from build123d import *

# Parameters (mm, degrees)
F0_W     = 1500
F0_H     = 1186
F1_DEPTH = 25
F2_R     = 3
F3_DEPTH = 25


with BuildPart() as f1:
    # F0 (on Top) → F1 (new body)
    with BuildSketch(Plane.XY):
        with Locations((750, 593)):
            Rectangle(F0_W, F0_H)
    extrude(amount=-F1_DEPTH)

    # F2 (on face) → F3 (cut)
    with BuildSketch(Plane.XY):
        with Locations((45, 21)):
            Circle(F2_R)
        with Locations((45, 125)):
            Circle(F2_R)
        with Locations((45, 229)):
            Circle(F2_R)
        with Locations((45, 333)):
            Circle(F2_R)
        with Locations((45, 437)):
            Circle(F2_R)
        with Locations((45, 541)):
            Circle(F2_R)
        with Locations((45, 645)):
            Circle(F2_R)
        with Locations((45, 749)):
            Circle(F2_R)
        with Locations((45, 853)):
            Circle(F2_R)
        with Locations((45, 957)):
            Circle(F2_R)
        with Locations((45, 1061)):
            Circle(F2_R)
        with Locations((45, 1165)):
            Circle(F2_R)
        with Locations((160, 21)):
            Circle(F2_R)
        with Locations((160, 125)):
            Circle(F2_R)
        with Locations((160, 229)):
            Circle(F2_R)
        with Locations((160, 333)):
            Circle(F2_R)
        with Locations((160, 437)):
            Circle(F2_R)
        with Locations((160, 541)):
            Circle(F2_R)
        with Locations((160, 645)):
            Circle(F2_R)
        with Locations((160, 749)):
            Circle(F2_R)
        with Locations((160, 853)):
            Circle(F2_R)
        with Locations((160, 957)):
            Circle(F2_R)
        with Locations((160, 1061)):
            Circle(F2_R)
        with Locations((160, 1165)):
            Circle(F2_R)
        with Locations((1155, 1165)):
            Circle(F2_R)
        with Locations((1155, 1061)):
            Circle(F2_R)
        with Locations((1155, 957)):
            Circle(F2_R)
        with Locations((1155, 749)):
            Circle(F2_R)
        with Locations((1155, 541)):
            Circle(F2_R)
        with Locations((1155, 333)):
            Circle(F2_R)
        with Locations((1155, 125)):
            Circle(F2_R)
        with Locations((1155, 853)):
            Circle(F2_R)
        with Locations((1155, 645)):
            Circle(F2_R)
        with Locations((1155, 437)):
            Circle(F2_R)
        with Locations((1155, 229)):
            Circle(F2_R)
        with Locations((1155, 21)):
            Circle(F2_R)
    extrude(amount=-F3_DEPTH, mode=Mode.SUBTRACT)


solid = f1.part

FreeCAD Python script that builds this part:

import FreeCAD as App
import Part
import Sketcher

V = App.Vector


def add_polygon(sketch, points):
    """Adds a closed chain of lines whose ends are joined by coincident constraints."""
    first, n = sketch.GeometryCount, len(points)
    for a, b in zip(points, points[1:] + points[:1]):
        sketch.addGeometry(Part.LineSegment(App.Vector(*a, 0), App.Vector(*b, 0)), False)
    for i in range(n):
        sketch.addConstraint(Sketcher.Constraint("Coincident", first + i, 2, first + (i + 1) % n, 1))

doc = App.newDocument("Part")
body = doc.addObject("PartDesign::Body", "Body")

# Sketch on XY plane
sketch1 = body.newObject("Sketcher::SketchObject", "Sketch")
sketch1.AttachmentSupport = (doc.getObject("XY_Plane"), [""])
sketch1.MapMode = "FlatFace"
add_polygon(sketch1, [(0, 1186), (0, 0), (1500, 0), (1500, 1186)])  # lines 0-3
sketch1.addConstraint([
    Sketcher.Constraint("Vertical", 0),
    Sketcher.Constraint("Horizontal", 1),
    Sketcher.Constraint("Vertical", 2),
    Sketcher.Constraint("Horizontal", 3),
    Sketcher.Constraint("Coincident", 0, 2, -1, 1),
    Sketcher.Constraint("DistanceX", 1, 1, 1, 2, 1500.0),
    Sketcher.Constraint("DistanceY", 0, 2, 0, 1, 1186.0),
])
pad1 = body.newObject("PartDesign::Pad", "Pad")
pad1.Profile = sketch1
pad1.Length = 25
pad1.Reversed = True

# Sketch on XY plane
sketch2 = body.newObject("Sketcher::SketchObject", "Sketch001")
sketch2.AttachmentSupport = (doc.getObject("XY_Plane"), [""])
sketch2.MapMode = "FlatFace"
sketch2.addGeometry([
    Part.Circle(V(45, 21, 0), V(0, 0, 1), 3),  # 0
    Part.Circle(V(45, 125, 0), V(0, 0, 1), 3),  # 1
    Part.Circle(V(45, 229, 0), V(0, 0, 1), 3),  # 2
    Part.Circle(V(45, 333, 0), V(0, 0, 1), 3),  # 3
    Part.Circle(V(45, 437, 0), V(0, 0, 1), 3),  # 4
    Part.Circle(V(45, 541, 0), V(0, 0, 1), 3),  # 5
    Part.Circle(V(45, 645, 0), V(0, 0, 1), 3),  # 6
    Part.Circle(V(45, 749, 0), V(0, 0, 1), 3),  # 7
    Part.Circle(V(45, 853, 0), V(0, 0, 1), 3),  # 8
    Part.Circle(V(45, 957, 0), V(0, 0, 1), 3),  # 9
    Part.Circle(V(45, 1061, 0), V(0, 0, 1), 3),  # 10
    Part.Circle(V(45, 1165, 0), V(0, 0, 1), 3),  # 11
    Part.Circle(V(160, 21, 0), V(0, 0, 1), 3),  # 12
    Part.Circle(V(160, 125, 0), V(0, 0, 1), 3),  # 13
    Part.Circle(V(160, 229, 0), V(0, 0, 1), 3),  # 14
    Part.Circle(V(160, 333, 0), V(0, 0, 1), 3),  # 15
    Part.Circle(V(160, 437, 0), V(0, 0, 1), 3),  # 16
    Part.Circle(V(160, 541, 0), V(0, 0, 1), 3),  # 17
    Part.Circle(V(160, 645, 0), V(0, 0, 1), 3),  # 18
    Part.Circle(V(160, 749, 0), V(0, 0, 1), 3),  # 19
    Part.Circle(V(160, 853, 0), V(0, 0, 1), 3),  # 20
    Part.Circle(V(160, 957, 0), V(0, 0, 1), 3),  # 21
    Part.Circle(V(160, 1061, 0), V(0, 0, 1), 3),  # 22
    Part.Circle(V(160, 1165, 0), V(0, 0, 1), 3),  # 23
    Part.Circle(V(1155, 1165, 0), V(0, 0, 1), 3),  # 24
    Part.Circle(V(1155, 1061, 0), V(0, 0, 1), 3),  # 25
    Part.Circle(V(1155, 957, 0), V(0, 0, 1), 3),  # 26
    Part.Circle(V(1155, 749, 0), V(0, 0, 1), 3),  # 27
    Part.Circle(V(1155, 541, 0), V(0, 0, 1), 3),  # 28
    Part.Circle(V(1155, 333, 0), V(0, 0, 1), 3),  # 29
    Part.Circle(V(1155, 125, 0), V(0, 0, 1), 3),  # 30
    Part.Circle(V(1155, 853, 0), V(0, 0, 1), 3),  # 31
    Part.Circle(V(1155, 645, 0), V(0, 0, 1), 3),  # 32
    Part.Circle(V(1155, 437, 0), V(0, 0, 1), 3),  # 33
    Part.Circle(V(1155, 229, 0), V(0, 0, 1), 3),  # 34
    Part.Circle(V(1155, 21, 0), V(0, 0, 1), 3),  # 35
], False)
sketch2.addConstraint([
    Sketcher.Constraint("Equal", 0, 1),
    Sketcher.Constraint("Equal", 1, 2),
    Sketcher.Constraint("Equal", 2, 3),
    Sketcher.Constraint("Equal", 3, 4),
    Sketcher.Constraint("Equal", 4, 5),
    Sketcher.Constraint("Equal", 5, 6),
    Sketcher.Constraint("Equal", 6, 7),
    Sketcher.Constraint("Equal", 7, 8),
    Sketcher.Constraint("Equal", 8, 9),
    Sketcher.Constraint("Equal", 9, 10),
    Sketcher.Constraint("Equal", 10, 11),
    Sketcher.Constraint("Equal", 11, 12),
    Sketcher.Constraint("Equal", 12, 13),
    Sketcher.Constraint("Equal", 13, 14),
    Sketcher.Constraint("Equal", 14, 15),
    Sketcher.Constraint("Equal", 15, 16),
    Sketcher.Constraint("Equal", 16, 17),
    Sketcher.Constraint("Equal", 17, 18),
    Sketcher.Constraint("Equal", 18, 19),
    Sketcher.Constraint("Equal", 19, 20),
    Sketcher.Constraint("Equal", 20, 21),
    Sketcher.Constraint("Equal", 21, 22),
    Sketcher.Constraint("Equal", 22, 23),
    Sketcher.Constraint("Equal", 23, 24),
    Sketcher.Constraint("Equal", 24, 25),
    Sketcher.Constraint("Equal", 25, 26),
    Sketcher.Constraint("Equal", 26, 27),
    Sketcher.Constraint("Equal", 27, 28),
    Sketcher.Constraint("Equal", 28, 29),
    Sketcher.Constraint("Equal", 29, 30),
    Sketcher.Constraint("Equal", 30, 31),
    Sketcher.Constraint("Equal", 31, 32),
    Sketcher.Constraint("Equal", 32, 33),
    Sketcher.Constraint("Equal", 33, 34),
    Sketcher.Constraint("Equal", 34, 35),
    Sketcher.Constraint("Horizontal", 0, 3, 12, 3),
    Sketcher.Constraint("Horizontal", 1, 3, 13, 3),
    Sketcher.Constraint("Horizontal", 2, 3, 14, 3),
    Sketcher.Constraint("Horizontal", 3, 3, 15, 3),
    Sketcher.Constraint("Horizontal", 4, 3, 16, 3),
    Sketcher.Constraint("Horizontal", 5, 3, 17, 3),
    Sketcher.Constraint("Horizontal", 6, 3, 18, 3),
    Sketcher.Constraint("Horizontal", 7, 3, 19, 3),
    Sketcher.Constraint("Horizontal", 8, 3, 20, 3),
    Sketcher.Constraint("Horizontal", 9, 3, 21, 3),
    Sketcher.Constraint("Horizontal", 10, 3, 22, 3),
    Sketcher.Constraint("Horizontal", 11, 3, 23, 3),
    Sketcher.Constraint("Horizontal", 23, 3, 24, 3),
    Sketcher.Constraint("Horizontal", 22, 3, 25, 3),
    Sketcher.Constraint("Horizontal", 21, 3, 26, 3),
    Sketcher.Constraint("Horizontal", 19, 3, 27, 3),
    Sketcher.Constraint("Horizontal", 17, 3, 28, 3),
    Sketcher.Constraint("Horizontal", 15, 3, 29, 3),
    Sketcher.Constraint("Horizontal", 13, 3, 30, 3),
    Sketcher.Constraint("Horizontal", 20, 3, 31, 3),
    Sketcher.Constraint("Horizontal", 18, 3, 32, 3),
    Sketcher.Constraint("Horizontal", 16, 3, 33, 3),
    Sketcher.Constraint("Horizontal", 14, 3, 34, 3),
    Sketcher.Constraint("Horizontal", 12, 3, 35, 3),
    Sketcher.Constraint("Vertical", 0, 3, 1, 3),
    Sketcher.Constraint("Vertical", 1, 3, 2, 3),
    Sketcher.Constraint("Vertical", 2, 3, 3, 3),
    Sketcher.Constraint("Vertical", 3, 3, 4, 3),
    Sketcher.Constraint("Vertical", 4, 3, 5, 3),
    Sketcher.Constraint("Vertical", 5, 3, 6, 3),
    Sketcher.Constraint("Vertical", 6, 3, 7, 3),
    Sketcher.Constraint("Vertical", 7, 3, 8, 3),
    Sketcher.Constraint("Vertical", 8, 3, 9, 3),
    Sketcher.Constraint("Vertical", 9, 3, 10, 3),
    Sketcher.Constraint("Vertical", 10, 3, 11, 3),
    Sketcher.Constraint("Vertical", 12, 3, 13, 3),
    Sketcher.Constraint("Vertical", 13, 3, 14, 3),
    Sketcher.Constraint("Vertical", 14, 3, 15, 3),
    Sketcher.Constraint("Vertical", 15, 3, 16, 3),
    Sketcher.Constraint("Vertical", 16, 3, 17, 3),
    Sketcher.Constraint("Vertical", 17, 3, 18, 3),
    Sketcher.Constraint("Vertical", 18, 3, 19, 3),
    Sketcher.Constraint("Vertical", 19, 3, 20, 3),
    Sketcher.Constraint("Vertical", 20, 3, 21, 3),
    Sketcher.Constraint("Vertical", 21, 3, 22, 3),
    Sketcher.Constraint("Vertical", 22, 3, 23, 3),
    Sketcher.Constraint("Vertical", 24, 3, 25, 3),
    Sketcher.Constraint("Vertical", 25, 3, 26, 3),
    Sketcher.Constraint("Vertical", 26, 3, 27, 3),
    Sketcher.Constraint("Vertical", 27, 3, 28, 3),
    Sketcher.Constraint("Vertical", 28, 3, 29, 3),
    Sketcher.Constraint("Vertical", 29, 3, 30, 3),
    Sketcher.Constraint("Vertical", 30, 3, 31, 3),
    Sketcher.Constraint("Vertical", 31, 3, 32, 3),
    Sketcher.Constraint("Vertical", 32, 3, 33, 3),
    Sketcher.Constraint("Vertical", 33, 3, 34, 3),
    Sketcher.Constraint("Vertical", 34, 3, 35, 3),
    Sketcher.Constraint("Diameter", 0, 6.0),
    Sketcher.Constraint("DistanceX", -1, 1, 0, 3, 45.0),
    Sketcher.Constraint("DistanceY", -1, 1, 0, 3, 21.0),
    Sketcher.Constraint("DistanceY", -1, 1, 1, 3, 125.0),
    Sketcher.Constraint("DistanceY", -1, 1, 2, 3, 229.0),
    Sketcher.Constraint("DistanceY", -1, 1, 3, 3, 333.0),
    Sketcher.Constraint("DistanceY", -1, 1, 4, 3, 437.0),
    Sketcher.Constraint("DistanceY", -1, 1, 5, 3, 541.0),
    Sketcher.Constraint("DistanceY", -1, 1, 6, 3, 645.0),
    Sketcher.Constraint("DistanceY", -1, 1, 7, 3, 749.0),
    Sketcher.Constraint("DistanceY", -1, 1, 8, 3, 853.0),
    Sketcher.Constraint("DistanceY", -1, 1, 9, 3, 957.0),
    Sketcher.Constraint("DistanceY", -1, 1, 10, 3, 1061.0),
    Sketcher.Constraint("DistanceY", -1, 1, 11, 3, 1165.0),
    Sketcher.Constraint("DistanceX", -1, 1, 12, 3, 160.0),
    Sketcher.Constraint("DistanceX", -1, 1, 24, 3, 1155.0),
])
pocket1 = body.newObject("PartDesign::Pocket", "Pocket")
pocket1.Profile = sketch2
pocket1.Length = 25

doc.recompute()
